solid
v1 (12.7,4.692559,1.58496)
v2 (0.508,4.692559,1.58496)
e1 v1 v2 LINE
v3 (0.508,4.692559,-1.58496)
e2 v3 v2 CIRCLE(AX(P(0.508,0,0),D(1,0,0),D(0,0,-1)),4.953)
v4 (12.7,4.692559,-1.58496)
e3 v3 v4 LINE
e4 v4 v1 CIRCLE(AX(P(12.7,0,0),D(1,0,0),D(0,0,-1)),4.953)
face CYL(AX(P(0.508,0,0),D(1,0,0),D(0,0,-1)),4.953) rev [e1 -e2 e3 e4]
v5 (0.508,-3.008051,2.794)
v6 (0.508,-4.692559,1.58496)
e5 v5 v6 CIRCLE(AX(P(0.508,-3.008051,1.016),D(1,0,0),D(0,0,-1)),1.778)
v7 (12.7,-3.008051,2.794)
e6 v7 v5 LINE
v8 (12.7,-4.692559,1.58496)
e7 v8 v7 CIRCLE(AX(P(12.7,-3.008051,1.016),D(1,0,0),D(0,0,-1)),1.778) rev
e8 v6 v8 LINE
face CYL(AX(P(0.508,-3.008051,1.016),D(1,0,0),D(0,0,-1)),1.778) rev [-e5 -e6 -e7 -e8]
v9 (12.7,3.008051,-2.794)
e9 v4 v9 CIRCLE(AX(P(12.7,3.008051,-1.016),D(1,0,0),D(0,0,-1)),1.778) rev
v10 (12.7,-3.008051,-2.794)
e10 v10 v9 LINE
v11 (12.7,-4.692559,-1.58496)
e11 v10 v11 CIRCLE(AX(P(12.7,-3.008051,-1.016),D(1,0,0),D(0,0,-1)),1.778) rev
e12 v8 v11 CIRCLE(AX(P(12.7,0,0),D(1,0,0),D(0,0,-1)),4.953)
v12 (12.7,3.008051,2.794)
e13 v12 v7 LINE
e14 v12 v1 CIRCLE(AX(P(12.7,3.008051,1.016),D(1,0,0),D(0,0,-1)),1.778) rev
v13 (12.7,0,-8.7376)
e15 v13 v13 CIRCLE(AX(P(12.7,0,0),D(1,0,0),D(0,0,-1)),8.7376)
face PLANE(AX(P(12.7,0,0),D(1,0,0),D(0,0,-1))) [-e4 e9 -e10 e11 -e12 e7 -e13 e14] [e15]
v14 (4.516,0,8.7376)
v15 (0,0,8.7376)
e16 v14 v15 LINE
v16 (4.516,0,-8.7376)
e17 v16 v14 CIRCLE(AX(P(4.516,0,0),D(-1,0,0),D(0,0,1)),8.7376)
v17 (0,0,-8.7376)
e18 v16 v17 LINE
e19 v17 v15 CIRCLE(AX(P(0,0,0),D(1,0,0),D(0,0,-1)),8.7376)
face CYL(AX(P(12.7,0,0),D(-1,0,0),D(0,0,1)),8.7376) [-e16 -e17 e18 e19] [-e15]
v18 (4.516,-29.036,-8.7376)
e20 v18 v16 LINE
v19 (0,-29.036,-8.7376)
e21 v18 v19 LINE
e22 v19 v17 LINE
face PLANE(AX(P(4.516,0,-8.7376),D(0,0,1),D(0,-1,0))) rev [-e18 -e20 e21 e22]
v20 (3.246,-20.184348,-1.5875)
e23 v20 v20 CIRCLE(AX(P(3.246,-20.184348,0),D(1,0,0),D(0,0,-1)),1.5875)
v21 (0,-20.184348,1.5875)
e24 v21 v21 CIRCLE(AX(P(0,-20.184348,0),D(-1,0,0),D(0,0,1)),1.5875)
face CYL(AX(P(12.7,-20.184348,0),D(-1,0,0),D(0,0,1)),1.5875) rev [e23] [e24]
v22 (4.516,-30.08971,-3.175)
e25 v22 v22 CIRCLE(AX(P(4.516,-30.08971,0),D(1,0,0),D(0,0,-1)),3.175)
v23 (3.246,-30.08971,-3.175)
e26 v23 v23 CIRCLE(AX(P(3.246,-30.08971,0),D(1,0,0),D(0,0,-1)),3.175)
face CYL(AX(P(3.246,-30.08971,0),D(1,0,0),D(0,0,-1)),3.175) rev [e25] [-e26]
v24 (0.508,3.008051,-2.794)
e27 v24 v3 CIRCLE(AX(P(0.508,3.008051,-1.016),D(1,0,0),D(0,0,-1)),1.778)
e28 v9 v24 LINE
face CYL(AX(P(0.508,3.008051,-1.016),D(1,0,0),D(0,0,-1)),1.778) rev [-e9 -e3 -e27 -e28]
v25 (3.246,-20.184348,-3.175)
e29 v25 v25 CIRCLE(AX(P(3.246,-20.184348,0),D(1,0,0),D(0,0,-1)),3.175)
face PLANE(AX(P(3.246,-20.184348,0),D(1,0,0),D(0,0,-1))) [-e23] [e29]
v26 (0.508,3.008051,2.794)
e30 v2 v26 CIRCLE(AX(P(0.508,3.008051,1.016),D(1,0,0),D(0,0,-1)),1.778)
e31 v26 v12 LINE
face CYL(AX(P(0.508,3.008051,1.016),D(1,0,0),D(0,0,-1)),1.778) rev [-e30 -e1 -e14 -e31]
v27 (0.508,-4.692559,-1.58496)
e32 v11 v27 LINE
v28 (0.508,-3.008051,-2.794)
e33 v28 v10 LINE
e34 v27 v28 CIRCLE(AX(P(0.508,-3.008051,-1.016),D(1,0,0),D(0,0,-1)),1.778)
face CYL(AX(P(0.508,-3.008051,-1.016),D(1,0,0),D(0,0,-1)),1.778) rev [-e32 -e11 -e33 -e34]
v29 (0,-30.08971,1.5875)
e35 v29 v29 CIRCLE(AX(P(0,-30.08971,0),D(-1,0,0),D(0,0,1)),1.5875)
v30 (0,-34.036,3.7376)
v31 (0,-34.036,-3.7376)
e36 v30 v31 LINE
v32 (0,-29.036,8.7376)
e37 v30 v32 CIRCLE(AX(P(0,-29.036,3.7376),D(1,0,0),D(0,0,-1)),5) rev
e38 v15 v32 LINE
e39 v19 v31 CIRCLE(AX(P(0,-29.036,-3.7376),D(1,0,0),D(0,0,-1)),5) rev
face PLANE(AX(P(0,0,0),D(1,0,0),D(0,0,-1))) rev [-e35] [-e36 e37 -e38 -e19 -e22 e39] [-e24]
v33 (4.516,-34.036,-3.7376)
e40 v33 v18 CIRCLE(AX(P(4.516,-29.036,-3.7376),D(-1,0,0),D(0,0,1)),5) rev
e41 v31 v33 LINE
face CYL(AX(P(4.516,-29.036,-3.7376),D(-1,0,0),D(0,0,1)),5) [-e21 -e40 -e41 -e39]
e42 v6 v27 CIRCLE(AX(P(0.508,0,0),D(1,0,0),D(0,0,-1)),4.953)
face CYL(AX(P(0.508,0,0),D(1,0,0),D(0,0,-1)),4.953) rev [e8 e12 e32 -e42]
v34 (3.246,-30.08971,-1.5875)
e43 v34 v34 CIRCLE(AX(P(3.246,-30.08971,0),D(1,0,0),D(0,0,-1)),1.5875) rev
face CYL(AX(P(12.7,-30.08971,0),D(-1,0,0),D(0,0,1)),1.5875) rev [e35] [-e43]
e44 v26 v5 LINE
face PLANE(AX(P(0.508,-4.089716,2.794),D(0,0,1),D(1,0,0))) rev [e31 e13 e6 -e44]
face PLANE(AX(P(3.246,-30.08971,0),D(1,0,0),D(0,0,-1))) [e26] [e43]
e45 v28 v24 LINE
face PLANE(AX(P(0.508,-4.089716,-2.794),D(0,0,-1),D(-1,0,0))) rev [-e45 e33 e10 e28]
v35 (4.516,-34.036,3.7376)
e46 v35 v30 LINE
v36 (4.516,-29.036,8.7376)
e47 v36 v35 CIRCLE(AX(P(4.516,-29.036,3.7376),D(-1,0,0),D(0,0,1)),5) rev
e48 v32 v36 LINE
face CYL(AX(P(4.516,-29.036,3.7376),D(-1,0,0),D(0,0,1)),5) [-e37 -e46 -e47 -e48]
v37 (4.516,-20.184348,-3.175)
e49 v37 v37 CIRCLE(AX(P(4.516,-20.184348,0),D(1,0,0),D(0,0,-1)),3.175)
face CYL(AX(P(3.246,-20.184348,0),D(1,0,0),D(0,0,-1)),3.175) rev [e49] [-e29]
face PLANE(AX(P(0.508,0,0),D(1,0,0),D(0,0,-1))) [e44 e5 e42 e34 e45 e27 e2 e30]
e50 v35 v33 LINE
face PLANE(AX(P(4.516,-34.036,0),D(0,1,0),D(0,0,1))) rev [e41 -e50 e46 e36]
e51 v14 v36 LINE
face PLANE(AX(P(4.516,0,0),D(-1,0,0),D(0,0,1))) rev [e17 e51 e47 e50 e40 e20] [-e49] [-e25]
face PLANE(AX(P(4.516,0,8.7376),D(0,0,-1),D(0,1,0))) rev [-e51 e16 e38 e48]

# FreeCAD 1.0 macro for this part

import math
import FreeCAD as App
import Part
import Sketcher

V = App.Vector
Q = App.Units.Quantity


def edges_at(feature, points):
    """Names of the edges that pass closest to the given points."""
    edges = feature.Shape.Edges
    near = lambda p: min(range(len(edges)), key=lambda i: edges[i].distToShape(Part.Vertex(*p))[0])
    return sorted({f"Edge{near(p) + 1}" for p in points})

doc = App.newDocument("Part")
params = doc.addObject("Spreadsheet::Sheet", "Params")
for row, (alias, value) in enumerate([
    ("sketch1_diameter", "0.688 in"),
    ("pad1_length", "0.5 in"),
    ("sketch2_radius", "0.344 in"),
    ("sketch2_width", "1.34 in"),
    ("pad2_length", "4.516 mm"),
    ("fillet_radius", "5 mm"),
    ("sketch3_radius", "0.195 in"),
    ("pocket1_length", "0.48 in"),
    ("sketch4_diameter", "0.125 in"),
    ("sketch5_diameter", "0.25 in"),
    ("sketch5_diameter2", "0.125 in"),
    ("pocket3_length", "0.05 in"),
    ("fillet2_radius", "0.07 in"),
], start=1):
    params.set(f"A{row}", alias)
    params.set(f"B{row}", "=" + value)
    params.setAlias(f"B{row}", alias)

body = doc.addObject("PartDesign::Body", "Body")

# Sketch on YZ plane
sketch1 = body.newObject("Sketcher::SketchObject", "Sketch")
sketch1.AttachmentSupport = (doc.getObject("YZ_Plane"), [""])
sketch1.MapMode = "FlatFace"
sketch1.addGeometry(Part.Circle(V(0, 0, 0), V(0, 0, 1), 9), False)
sketch1.addConstraint(Sketcher.Constraint("Coincident", 0, 3, -1, 1))
sketch1.addConstraint(Sketcher.Constraint("Diameter", 0, Q("0.688 in")))
sketch1.setExpression("Constraints[1]", "Params.sketch1_diameter")
pad1 = body.newObject("PartDesign::Pad", "Pad")
pad1.Profile = sketch1
pad1.setExpression("Length", "Params.pad1_length")

# Sketch on YZ plane
sketch2 = body.newObject("Sketcher::SketchObject", "Sketch001")
sketch2.AttachmentSupport = (doc.getObject("YZ_Plane"), [""])
sketch2.MapMode = "FlatFace"
sketch2.addGeometry(Part.LineSegment(V(-34, 9, 0), V(0, 9, 0)), False)
sketch2.addGeometry(Part.ArcOfCircle(Part.Circle(V(0, 0, 0), V(0, 0, 1), 9), math.radians(90), math.radians(270)), False)
sketch2.addGeometry(Part.LineSegment(V(0, -9, 0), V(-34, -9, 0)), False)
sketch2.addGeometry(Part.LineSegment(V(-34, -9, 0), V(-34, 9, 0)), False)
sketch2.addConstraint(Sketcher.Constraint("Tangent", 0, 2, 1, 1))
sketch2.addConstraint(Sketcher.Constraint("Tangent", 1, 2, 2, 1))
sketch2.addConstraint(Sketcher.Constraint("Coincident", 2, 2, 3, 1))
sketch2.addConstraint(Sketcher.Constraint("Coincident", 3, 2, 0, 1))
sketch2.addConstraint(Sketcher.Constraint("Horizontal", 0))
sketch2.addConstraint(Sketcher.Constraint("Horizontal", 2))
sketch2.addConstraint(Sketcher.Constraint("Vertical", 3))
sketch2.addConstraint(Sketcher.Constraint("Coincident", 1, 3, -1, 1))
sketch2.addConstraint(Sketcher.Constraint("Radius", 1, Q("0.344 in")))
sketch2.addConstraint(Sketcher.Constraint("DistanceX", 0, 1, 0, 2, Q("1.34 in")))
sketch2.setExpression("Constraints[8]", "Params.sketch2_radius")
sketch2.setExpression("Constraints[9]", "Params.sketch2_width")
pad2 = body.newObject("PartDesign::Pad", "Pad001")
pad2.Profile = sketch2
pad2.setExpression("Length", "Params.pad2_length")
doc.recompute()

fillet = body.newObject("PartDesign::Fillet", "Fillet")
fillet.Base = (pad2, edges_at(pad2, [(2.258, -34.036, 8.738), (2.258, -34.036, -8.738)]))
fillet.setExpression("Radius", "Params.fillet_radius")

# Sketch on YZ plane
sketch3 = body.newObject("Sketcher::SketchObject", "Sketch002")
sketch3.AttachmentSupport = (doc.getObject("YZ_Plane"), [""])
sketch3.MapMode = "FlatFace"
sketch3.AttachmentOffset = App.Placement(V(0, 0, 0.5 * 25.4), App.Rotation())
sketch3.addGeometry(Part.LineSegment(V(-4.1, -2.8, 0), V(4.1, -2.8, 0)), False)
sketch3.addGeometry(Part.ArcOfCircle(Part.Circle(V(0, 0, 0), V(0, 0, 1), 5), math.radians(-34), math.radians(34)), False)
sketch3.addGeometry(Part.LineSegment(V(4.1, 2.8, 0), V(-4.1, 2.8, 0)), False)
sketch3.addGeometry(Part.ArcOfCircle(Part.Circle(V(0, 0, 0), V(0, 0, 1), 5), math.radians(146), math.radians(214)), False)
sketch3.addConstraint(Sketcher.Constraint("Coincident", 0, 2, 1, 1))
sketch3.addConstraint(Sketcher.Constraint("Coincident", 1, 2, 2, 1))
sketch3.addConstraint(Sketcher.Constraint("Coincident", 2, 2, 3, 1))
sketch3.addConstraint(Sketcher.Constraint("Coincident", 3, 2, 0, 1))
sketch3.addConstraint(Sketcher.Constraint("Horizontal", 0))
sketch3.addConstraint(Sketcher.Constraint("Horizontal", 2))
sketch3.addConstraint(Sketcher.Constraint("Coincident", 1, 3, -1, 1))
sketch3.addConstraint(Sketcher.Constraint("Coincident", 3, 3, -1, 1))
sketch3.addConstraint(Sketcher.Constraint("Equal", 1, 3))
sketch3.addConstraint(Sketcher.Constraint("Vertical", 0, 2, 1, 2))
sketch3.addConstraint(Sketcher.Constraint("Radius", 1, Q("0.195 in")))
sketch3.addConstraint(Sketcher.Constraint("DistanceY", 0, 2, -1, 1, Q("0.11 in")))
sketch3.setExpression("Constraints[10]", "Params.sketch3_radius")
pocket1 = body.newObject("PartDesign::Pocket", "Pocket")
pocket1.Profile = sketch3
pocket1.setExpression("Length", "Params.pocket1_length")

# Sketch on YZ plane
sketch4 = body.newObject("Sketcher::SketchObject", "Sketch003")
sketch4.AttachmentSupport = (doc.getObject("YZ_Plane"), [""])
sketch4.MapMode = "FlatFace"
sketch4.addGeometry(Part.Circle(V(-30.1, 0, 0), V(0, 0, 1), 1.6), False)
sketch4.addGeometry(Part.Circle(V(-20.2, 0, 0), V(0, 0, 1), 1.6), False)
sketch4.addConstraint(Sketcher.Constraint("Equal", 0, 1))
sketch4.addConstraint(Sketcher.Constraint("PointOnObject", 0, 3, -1))
sketch4.addConstraint(Sketcher.Constraint("PointOnObject", 1, 3, -1))
sketch4.addConstraint(Sketcher.Constraint("Diameter", 0, Q("0.125 in")))
sketch4.addConstraint(Sketcher.Constraint("DistanceX", 0, 3, -1, 1, 30.08971))
sketch4.addConstraint(Sketcher.Constraint("DistanceX", 1, 3, -1, 1, 20.184348))
sketch4.setExpression("Constraints[3]", "Params.sketch4_diameter")
pocket2 = body.newObject("PartDesign::Pocket", "Pocket001")
pocket2.Profile = sketch4
pocket2.Type = "ThroughAll"
pocket2.Reversed = True

# Sketch on YZ plane
sketch5 = body.newObject("Sketcher::SketchObject", "Sketch004")
sketch5.AttachmentSupport = (doc.getObject("YZ_Plane"), [""])
sketch5.MapMode = "FlatFace"
sketch5.AttachmentOffset = App.Placement(V(0, 0, 3.246), App.Rotation())
sketch5.addGeometry(Part.Circle(V(-20.2, 0, 0), V(0, 0, 1), 3.2), False)
sketch5.addGeometry(Part.Circle(V(-20.2, 0, 0), V(0, 0, 1), 1.6), False)
sketch5.addGeometry(Part.Circle(V(-30.1, 0, 0), V(0, 0, 1), 3.2), False)
sketch5.addConstraint(Sketcher.Constraint("Coincident", 1, 3, 0, 3))
sketch5.addConstraint(Sketcher.Constraint("Equal", 0, 2))
sketch5.addConstraint(Sketcher.Constraint("PointOnObject", 0, 3, -1))
sketch5.addConstraint(Sketcher.Constraint("PointOnObject", 2, 3, -1))
sketch5.addConstraint(Sketcher.Constraint("Diameter", 0, Q("0.25 in")))
sketch5.addConstraint(Sketcher.Constraint("Diameter", 1, Q("0.125 in")))
sketch5.addConstraint(Sketcher.Constraint("DistanceX", 0, 3, -1, 1, 20.184348))
sketch5.addConstraint(Sketcher.Constraint("DistanceX", 2, 3, -1, 1, 30.08971))
sketch5.setExpression("Constraints[4]", "Params.sketch5_diameter")
sketch5.setExpression("Constraints[5]", "Params.sketch5_diameter2")
pocket3 = body.newObject("PartDesign::Pocket", "Pocket002")
pocket3.Profile = sketch5
pocket3.setExpression("Length", "Params.pocket3_length")
pocket3.Reversed = True
doc.recompute()

fillet2 = body.newObject("PartDesign::Fillet", "Fillet001")
fillet2.Base = (pocket3, edges_at(pocket3, [
    (6.604, 4.09, 2.794),
    (6.604, 4.09, -2.794),
    (6.604, -4.09, -2.794),
    (6.604, -4.09, 2.794),
]))
fillet2.setExpression("Radius", "Params.fillet2_radius")

doc.recompute()
